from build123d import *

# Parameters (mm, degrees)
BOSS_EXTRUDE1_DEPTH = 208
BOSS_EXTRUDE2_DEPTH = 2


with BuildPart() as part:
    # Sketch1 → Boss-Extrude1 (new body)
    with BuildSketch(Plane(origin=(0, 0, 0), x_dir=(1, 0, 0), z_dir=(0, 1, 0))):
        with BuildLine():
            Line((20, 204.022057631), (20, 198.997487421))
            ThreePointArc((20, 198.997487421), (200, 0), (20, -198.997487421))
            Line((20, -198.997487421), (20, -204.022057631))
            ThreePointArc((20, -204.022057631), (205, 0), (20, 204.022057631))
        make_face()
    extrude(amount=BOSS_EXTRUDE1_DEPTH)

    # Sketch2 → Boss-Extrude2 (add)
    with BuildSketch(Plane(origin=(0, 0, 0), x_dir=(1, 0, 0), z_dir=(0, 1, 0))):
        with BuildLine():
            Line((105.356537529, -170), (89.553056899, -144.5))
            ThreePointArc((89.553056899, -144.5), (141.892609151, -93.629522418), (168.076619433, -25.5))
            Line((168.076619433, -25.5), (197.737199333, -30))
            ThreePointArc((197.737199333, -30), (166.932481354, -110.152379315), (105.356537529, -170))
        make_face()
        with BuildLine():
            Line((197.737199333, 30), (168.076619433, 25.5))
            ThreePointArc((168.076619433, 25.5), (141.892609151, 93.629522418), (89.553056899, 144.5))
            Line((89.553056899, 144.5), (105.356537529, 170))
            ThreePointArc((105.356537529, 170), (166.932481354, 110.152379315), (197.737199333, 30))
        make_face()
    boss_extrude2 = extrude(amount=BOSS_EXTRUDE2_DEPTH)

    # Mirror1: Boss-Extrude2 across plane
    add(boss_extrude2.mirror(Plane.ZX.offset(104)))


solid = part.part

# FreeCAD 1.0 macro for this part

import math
import FreeCAD as App
import Part
import Sketcher
from FreeCAD import Vector
Q = App.Units.Quantity

doc = App.newDocument("Part")
body = doc.addObject("PartDesign::Body", "Body")

sketch1 = doc.addObject("Sketcher::SketchObject", "Sketch")
body.addObject(sketch1)
sketch1.AttachmentSupport = (doc.XZ_Plane, [""])
sketch1.MapMode = "FlatFace"
sketch1.addGeometry(Part.LineSegment(Vector(20, -204, 0), Vector(20, -199, 0)), False)
sketch1.addGeometry(Part.ArcOfCircle(Part.Circle(Vector(0, 0, 0), Vector(0, 0, 1), 200), math.radians(-84), math.radians(84)), False)
sketch1.addGeometry(Part.LineSegment(Vector(20, 199, 0), Vector(20, 204, 0)), False)
sketch1.addGeometry(Part.ArcOfCircle(Part.Circle(Vector(0, 0, 0), Vector(0, 0, 1), 205), math.radians(-84), math.radians(84)), False)
sketch1.addConstraint(Sketcher.Constraint("Coincident", 0, 2, 1, 1))
sketch1.addConstraint(Sketcher.Constraint("Coincident", 1, 2, 2, 1))
sketch1.addConstraint(Sketcher.Constraint("Coincident", 2, 2, 3, 2))
sketch1.addConstraint(Sketcher.Constraint("Coincident", 3, 1, 0, 1))
sketch1.addConstraint(Sketcher.Constraint("Vertical", 0))
sketch1.addConstraint(Sketcher.Constraint("Vertical", 2))
sketch1.addConstraint(Sketcher.Constraint("Coincident", 1, 3, -1, 1))
sketch1.addConstraint(Sketcher.Constraint("Coincident", 3, 3, -1, 1))
sketch1.addConstraint(Sketcher.Constraint("Vertical", 0, 2, 1, 2))
sketch1.addConstraint(Sketcher.Constraint("Radius", 1, Q("200 mm")))
sketch1.addConstraint(Sketcher.Constraint("Radius", 3, Q("205 mm")))
sketch1.addConstraint(Sketcher.Constraint("DistanceX", -1, 1, 0, 2, Q("20 mm")))
pad1 = doc.addObject("PartDesign::Pad", "Pad")
body.addObject(pad1)
pad1.Profile = sketch1
pad1.Length = 208
pad1.Reversed = True

sketch2 = doc.addObject("Sketcher::SketchObject", "Sketch001")
body.addObject(sketch2)
sketch2.AttachmentSupport = (doc.XZ_Plane, [""])
sketch2.MapMode = "FlatFace"
sketch2.addGeometry(Part.LineSegment(Vector(90, 144, 0), Vector(105, 170, 0)), False)
sketch2.addGeometry(Part.ArcOfCircle(Part.Circle(Vector(0, 0, 0), Vector(0, 0, 1), 200), math.radians(9), math.radians(58)), False)
sketch2.addGeometry(Part.LineSegment(Vector(198, 30, 0), Vector(168, 26, 0)), False)
sketch2.addGeometry(Part.ArcOfCircle(Part.Circle(Vector(0, 0, 0), Vector(0, 0, 1), 170), math.radians(9), math.radians(58)), False)
sketch2.addGeometry(Part.LineSegment(Vector(168, -26, 0), Vector(198, -30, 0)), False)
sketch2.addGeometry(Part.ArcOfCircle(Part.Circle(Vector(0, 0, 0), Vector(0, 0, 1), 200), math.radians(-58), math.radians(-9)), False)
sketch2.addGeometry(Part.LineSegment(Vector(105, -170, 0), Vector(90, -144, 0)), False)
sketch2.addGeometry(Part.ArcOfCircle(Part.Circle(Vector(0, 0, 0), Vector(0, 0, 1), 170), math.radians(-58), math.radians(-9)), False)
sketch2.addConstraint(Sketcher.Constraint("Coincident", 0, 2, 1, 2))
sketch2.addConstraint(Sketcher.Constraint("Coincident", 1, 1, 2, 1))
sketch2.addConstraint(Sketcher.Constraint("Coincident", 2, 2, 3, 1))
sketch2.addConstraint(Sketcher.Constraint("Coincident", 3, 2, 0, 1))
sketch2.addConstraint(Sketcher.Constraint("Coincident", 4, 2, 5, 2))
sketch2.addConstraint(Sketcher.Constraint("Coincident", 5, 1, 6, 1))
sketch2.addConstraint(Sketcher.Constraint("Coincident", 6, 2, 7, 1))
sketch2.addConstraint(Sketcher.Constraint("Coincident", 7, 2, 4, 1))
sketch2.addConstraint(Sketcher.Constraint("Coincident", 1, 3, -1, 1))
sketch2.addConstraint(Sketcher.Constraint("Coincident", 3, 3, -1, 1))
sketch2.addConstraint(Sketcher.Constraint("Coincident", 5, 3, -1, 1))
sketch2.addConstraint(Sketcher.Constraint("Coincident", 7, 3, -1, 1))
sketch2.addConstraint(Sketcher.Constraint("Equal", 1, 5))
sketch2.addConstraint(Sketcher.Constraint("Equal", 3, 7))
sketch2.addConstraint(Sketcher.Constraint("Vertical", 1, 1, 4, 2))
sketch2.addConstraint(Sketcher.Constraint("Vertical", 0, 2, 5, 1))
sketch2.addConstraint(Sketcher.Constraint("Vertical", 3, 2, 6, 2))
sketch2.addConstraint(Sketcher.Constraint("Vertical", 2, 2, 7, 2))
sketch2.addConstraint(Sketcher.Constraint("Radius", 1, Q("200 mm")))
sketch2.addConstraint(Sketcher.Constraint("Radius", 3, Q("170 mm")))
sketch2.addConstraint(Sketcher.Constraint("DistanceY", -1, 1, 0, 2, Q("170 mm")))
sketch2.addConstraint(Sketcher.Constraint("DistanceY", -1, 1, 1, 1, Q("30 mm")))
sketch2.addConstraint(Sketcher.Constraint("DistanceY", 2, 2, 3, 2, Q("119 mm")))
sketch2.addConstraint(Sketcher.Constraint("DistanceY", 7, 2, 2, 2, Q("51 mm")))
pad2 = doc.addObject("PartDesign::Pad", "Pad001")
body.addObject(pad2)
pad2.Profile = sketch2
pad2.Length = 2
pad2.Reversed = True
doc.recompute()

datumplane = doc.addObject("PartDesign::Plane", "DatumPlane")
body.addObject(datumplane)
datumplane.AttachmentSupport = (doc.XZ_Plane, [""])
datumplane.MapMode = "FlatFace"
datumplane.AttachmentOffset = App.Placement(Vector(0, 0, -104), App.Rotation())
mirrored = doc.addObject("PartDesign::Mirrored", "Mirrored")
body.addObject(mirrored)
mirrored.Originals = [pad2]
mirrored.MirrorPlane = (datumplane, [""])
body.Tip = mirrored

doc.recompute()
